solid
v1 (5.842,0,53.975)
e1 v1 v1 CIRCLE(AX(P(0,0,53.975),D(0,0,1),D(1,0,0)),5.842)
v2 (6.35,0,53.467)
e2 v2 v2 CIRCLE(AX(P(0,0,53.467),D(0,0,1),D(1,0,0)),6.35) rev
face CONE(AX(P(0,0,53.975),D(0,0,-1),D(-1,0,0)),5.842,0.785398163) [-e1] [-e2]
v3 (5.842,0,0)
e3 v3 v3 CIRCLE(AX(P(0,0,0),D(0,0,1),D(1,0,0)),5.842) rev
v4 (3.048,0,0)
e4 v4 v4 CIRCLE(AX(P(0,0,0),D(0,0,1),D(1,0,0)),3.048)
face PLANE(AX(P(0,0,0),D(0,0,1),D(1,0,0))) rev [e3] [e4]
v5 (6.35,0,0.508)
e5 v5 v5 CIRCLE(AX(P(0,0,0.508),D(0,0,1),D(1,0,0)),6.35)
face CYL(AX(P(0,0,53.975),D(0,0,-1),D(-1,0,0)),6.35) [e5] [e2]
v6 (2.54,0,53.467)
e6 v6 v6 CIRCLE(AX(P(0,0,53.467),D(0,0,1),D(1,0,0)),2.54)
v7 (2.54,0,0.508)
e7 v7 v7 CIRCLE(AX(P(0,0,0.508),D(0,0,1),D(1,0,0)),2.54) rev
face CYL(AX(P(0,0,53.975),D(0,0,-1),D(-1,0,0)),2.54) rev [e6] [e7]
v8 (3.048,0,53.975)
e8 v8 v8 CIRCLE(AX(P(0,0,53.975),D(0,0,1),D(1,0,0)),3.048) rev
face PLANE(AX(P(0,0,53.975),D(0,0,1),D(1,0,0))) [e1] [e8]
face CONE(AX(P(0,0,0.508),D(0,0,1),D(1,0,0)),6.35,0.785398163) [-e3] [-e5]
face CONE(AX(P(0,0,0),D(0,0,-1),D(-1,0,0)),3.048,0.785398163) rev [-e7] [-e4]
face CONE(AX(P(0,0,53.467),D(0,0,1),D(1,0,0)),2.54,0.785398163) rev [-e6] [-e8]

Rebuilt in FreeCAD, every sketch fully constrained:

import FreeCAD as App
import Part
import Sketcher
Q = App.Units.Quantity


def edges_at(feature, points):
    """Names of the edges that pass closest to the given points."""
    edges = feature.Shape.Edges
    near = lambda p: min(range(len(edges)), key=lambda i: edges[i].distToShape(Part.Vertex(*p))[0])
    return sorted({f"Edge{near(p) + 1}" for p in points})

doc = App.newDocument("Part")
params = doc.addObject("Spreadsheet::Sheet", "Params")
for row, (alias, value) in enumerate([
    ("sketch1_diameter", "0.5 in"),
    ("sketch1_diameter2", "0.2 in"),
    ("pad1_length", "2.125 in"),
    ("chamfer_size", "0.02 in"),
], start=1):
    params.set(f"A{row}", alias)
    params.set(f"B{row}", "=" + value)
    params.setAlias(f"B{row}", alias)

body = doc.addObject("PartDesign::Body", "Body")

# Sketch on XY plane
sketch1 = body.newObject("Sketcher::SketchObject", "Sketch")
sketch1.AttachmentSupport = (doc.getObject("XY_Plane"), [""])
sketch1.MapMode = "FlatFace"
sketch1.addGeometry([
    Part.Circle(App.Vector(0, 0, 0), App.Vector(0, 0, 1), 6.3),
    Part.Circle(App.Vector(0, 0, 0), App.Vector(0, 0, 1), 2.5),
], False)
sketch1.addConstraint([
    Sketcher.Constraint("Coincident", 0, 3, -1, 1),
    Sketcher.Constraint("Coincident", 1, 3, -1, 1),
    Sketcher.Constraint("Diameter", 0, Q("0.5 in")),
    Sketcher.Constraint("Diameter", 1, Q("0.2 in")),
])
sketch1.setExpression("Constraints[2]", "Params.sketch1_diameter")
sketch1.setExpression("Constraints[3]", "Params.sketch1_diameter2")
pad1 = body.newObject("PartDesign::Pad", "Pad")
pad1.Profile = sketch1
pad1.setExpression("Length", "Params.pad1_length")
doc.recompute()

chamfer = body.newObject("PartDesign::Chamfer", "Chamfer")
chamfer.Base = (pad1, edges_at(pad1, [
    (-6.35, 0, 0),
    (-6.35, 0, 53.975),
    (-2.54, 0, 0),
    (-2.54, 0, 53.975),
]))
chamfer.setExpression("Size", "Params.chamfer_size")

doc.recompute()
